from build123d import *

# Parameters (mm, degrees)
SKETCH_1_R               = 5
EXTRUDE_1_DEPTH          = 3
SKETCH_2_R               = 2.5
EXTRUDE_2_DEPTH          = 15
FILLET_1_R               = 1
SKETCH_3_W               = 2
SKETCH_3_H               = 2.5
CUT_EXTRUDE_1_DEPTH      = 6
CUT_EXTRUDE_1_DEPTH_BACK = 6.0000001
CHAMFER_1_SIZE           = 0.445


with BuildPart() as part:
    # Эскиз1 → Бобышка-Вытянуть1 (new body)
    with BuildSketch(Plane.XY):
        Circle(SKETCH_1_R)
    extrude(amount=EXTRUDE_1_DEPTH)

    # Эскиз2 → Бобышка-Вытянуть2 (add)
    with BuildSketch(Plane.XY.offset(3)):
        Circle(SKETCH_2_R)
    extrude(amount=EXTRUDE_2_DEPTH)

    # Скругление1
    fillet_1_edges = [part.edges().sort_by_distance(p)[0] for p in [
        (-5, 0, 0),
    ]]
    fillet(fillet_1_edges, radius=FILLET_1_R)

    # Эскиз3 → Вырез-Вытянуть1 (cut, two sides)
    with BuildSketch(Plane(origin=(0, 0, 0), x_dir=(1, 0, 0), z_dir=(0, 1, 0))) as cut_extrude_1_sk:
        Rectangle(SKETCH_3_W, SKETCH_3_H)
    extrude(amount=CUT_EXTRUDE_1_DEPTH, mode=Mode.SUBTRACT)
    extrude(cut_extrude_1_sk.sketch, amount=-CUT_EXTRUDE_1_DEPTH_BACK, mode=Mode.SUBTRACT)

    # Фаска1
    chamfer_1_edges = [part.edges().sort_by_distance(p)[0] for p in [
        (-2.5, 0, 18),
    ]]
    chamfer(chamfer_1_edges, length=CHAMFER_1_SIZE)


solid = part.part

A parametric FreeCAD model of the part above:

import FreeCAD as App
import Part
import Sketcher

V = App.Vector


def edges_at(feature, points):
    """Names of the edges that pass closest to the given points."""
    edges = feature.Shape.Edges
    near = lambda p: min(range(len(edges)), key=lambda i: edges[i].distToShape(Part.Vertex(*p))[0])
    return sorted({f"Edge{near(p) + 1}" for p in points})


def add_polygon(sketch, points):
    """Adds a closed chain of lines whose ends are joined by coincident constraints."""
    first, n = sketch.GeometryCount, len(points)
    for a, b in zip(points, points[1:] + points[:1]):
        sketch.addGeometry(Part.LineSegment(App.Vector(*a, 0), App.Vector(*b, 0)), False)
    for i in range(n):
        sketch.addConstraint(Sketcher.Constraint("Coincident", first + i, 2, first + (i + 1) % n, 1))

doc = App.newDocument("Part")
body = doc.addObject("PartDesign::Body", "Body")

# Sketch on XY plane
sketch1 = body.newObject("Sketcher::SketchObject", "Sketch")
sketch1.AttachmentSupport = (doc.getObject("XY_Plane"), [""])
sketch1.MapMode = "FlatFace"
sketch1.addGeometry(Part.Circle(V(0, 0, 0), V(0, 0, 1), 5), False)
sketch1.addConstraint(Sketcher.Constraint("Coincident", 0, 3, -1, 1))
sketch1.addConstraint(Sketcher.Constraint("Diameter", 0, 10.0))
pad1 = body.newObject("PartDesign::Pad", "Pad")
pad1.Profile = sketch1
pad1.Length = 3

# Sketch on XY plane
sketch2 = body.newObject("Sketcher::SketchObject", "Sketch001")
sketch2.AttachmentSupport = (doc.getObject("XY_Plane"), [""])
sketch2.MapMode = "FlatFace"
sketch2.AttachmentOffset = App.Placement(V(0, 0, 3), App.Rotation())
sketch2.addGeometry(Part.Circle(V(0, 0, 0), V(0, 0, 1), 2.5), False)
sketch2.addConstraint(Sketcher.Constraint("Coincident", 0, 3, -1, 1))
sketch2.addConstraint(Sketcher.Constraint("Diameter", 0, 5.0))
pad2 = body.newObject("PartDesign::Pad", "Pad001")
pad2.Profile = sketch2
pad2.Length = 15
doc.recompute()

fillet = body.newObject("PartDesign::Fillet", "Fillet")
fillet.Base = (pad2, edges_at(pad2, [(-5, 0, 0)]))
fillet.Radius = 1

# Sketch on XZ plane
sketch3 = body.newObject("Sketcher::SketchObject", "Sketch002")
sketch3.AttachmentSupport = (doc.getObject("XZ_Plane"), [""])
sketch3.MapMode = "FlatFace"
add_polygon(sketch3, [(-1, -1.25), (-1, 1.25), (1, 1.25), (1, -1.25)])  # lines 0-3
sketch3.addConstraint(Sketcher.Constraint("Vertical", 0))
sketch3.addConstraint(Sketcher.Constraint("Horizontal", 1))
sketch3.addConstraint(Sketcher.Constraint("Vertical", 2))
sketch3.addConstraint(Sketcher.Constraint("Horizontal", 3))
sketch3.addConstraint(Sketcher.Constraint("Symmetric", 0, 2, 2, 2, -1, 1))
sketch3.addConstraint(Sketcher.Constraint("DistanceX", 1, 1, 1, 2, 2.0))
sketch3.addConstraint(Sketcher.Constraint("DistanceY", 0, 1, 0, 2, 2.5))
pocket1 = body.newObject("PartDesign::Pocket", "Pocket")
pocket1.Profile = sketch3
pocket1.Type = "ThroughAll"
pocket1.Midplane = True
doc.recompute()

chamfer = body.newObject("PartDesign::Chamfer", "Chamfer")
chamfer.Base = (pocket1, edges_at(pocket1, [(-2.5, 0, 18)]))
chamfer.Size = 0.445

doc.recompute()
